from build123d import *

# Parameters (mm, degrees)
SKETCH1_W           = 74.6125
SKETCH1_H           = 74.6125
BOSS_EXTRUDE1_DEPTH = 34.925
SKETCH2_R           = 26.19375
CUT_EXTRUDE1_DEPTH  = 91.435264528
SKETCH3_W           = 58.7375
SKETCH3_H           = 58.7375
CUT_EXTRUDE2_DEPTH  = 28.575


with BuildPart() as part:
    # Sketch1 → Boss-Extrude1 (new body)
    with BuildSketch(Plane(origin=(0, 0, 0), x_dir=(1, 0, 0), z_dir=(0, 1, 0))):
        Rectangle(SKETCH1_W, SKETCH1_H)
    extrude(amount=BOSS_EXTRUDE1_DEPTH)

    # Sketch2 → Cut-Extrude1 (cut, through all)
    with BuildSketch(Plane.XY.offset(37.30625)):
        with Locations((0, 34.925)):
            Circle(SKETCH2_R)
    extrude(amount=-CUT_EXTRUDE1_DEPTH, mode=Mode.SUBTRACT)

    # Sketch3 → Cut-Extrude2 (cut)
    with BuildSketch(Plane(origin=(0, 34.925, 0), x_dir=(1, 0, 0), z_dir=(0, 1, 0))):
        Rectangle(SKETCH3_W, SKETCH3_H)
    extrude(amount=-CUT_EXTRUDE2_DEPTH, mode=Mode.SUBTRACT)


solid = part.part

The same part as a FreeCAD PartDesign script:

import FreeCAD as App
import Part
import Sketcher
Q = App.Units.Quantity

doc = App.newDocument("Part")
body = doc.addObject("PartDesign::Body", "Body")

sketch1 = body.newObject("Sketcher::SketchObject", "Sketch")
sketch1.AttachmentSupport = (doc.getObject("XZ_Plane"), [""])
sketch1.MapMode = "FlatFace"
sketch1.addGeometry(Part.LineSegment(App.Vector(-37.30625, -37.30625, 0), App.Vector(-37.30625, 37.30625, 0)), False)
sketch1.addGeometry(Part.LineSegment(App.Vector(-37.30625, 37.30625, 0), App.Vector(37.30625, 37.30625, 0)), False)
sketch1.addGeometry(Part.LineSegment(App.Vector(37.30625, 37.30625, 0), App.Vector(37.30625, -37.30625, 0)), False)
sketch1.addGeometry(Part.LineSegment(App.Vector(37.30625, -37.30625, 0), App.Vector(-37.30625, -37.30625, 0)), False)
sketch1.addConstraint(Sketcher.Constraint("Coincident", 0, 2, 1, 1))
sketch1.addConstraint(Sketcher.Constraint("Coincident", 1, 2, 2, 1))
sketch1.addConstraint(Sketcher.Constraint("Coincident", 2, 2, 3, 1))
sketch1.addConstraint(Sketcher.Constraint("Coincident", 3, 2, 0, 1))
sketch1.addConstraint(Sketcher.Constraint("Vertical", 0))
sketch1.addConstraint(Sketcher.Constraint("Horizontal", 1))
sketch1.addConstraint(Sketcher.Constraint("Vertical", 2))
sketch1.addConstraint(Sketcher.Constraint("Horizontal", 3))
sketch1.addConstraint(Sketcher.Constraint("Symmetric", 0, 2, 2, 2, -1, 1))
sketch1.addConstraint(Sketcher.Constraint("Equal", 3, 0))
sketch1.addConstraint(Sketcher.Constraint("DistanceX", 1, 1, 1, 2, Q("2.9375 in")))
pad1 = body.newObject("PartDesign::Pad", "Pad")
pad1.Profile = sketch1
pad1.Length = Q("1.375 in")
pad1.Reversed = True

sketch2 = body.newObject("Sketcher::SketchObject", "Sketch001")
sketch2.AttachmentSupport = (doc.getObject("XY_Plane"), [""])
sketch2.MapMode = "FlatFace"
sketch2.AttachmentOffset = App.Placement(App.Vector(0, 0, 1.46875 * 25.4), App.Rotation())
sketch2.addGeometry(Part.Circle(App.Vector(0, 34.925, 0), App.Vector(0, 0, 1), 26.19375), False)
sketch2.addConstraint(Sketcher.Constraint("PointOnObject", 0, 3, -2))
sketch2.addConstraint(Sketcher.Constraint("Diameter", 0, Q("2.0625 in")))
sketch2.addConstraint(Sketcher.Constraint("DistanceY", -1, 1, 0, 3, Q("1.375 in")))
pocket1 = body.newObject("PartDesign::Pocket", "Pocket")
pocket1.Profile = sketch2
pocket1.Type = "ThroughAll"

sketch3 = body.newObject("Sketcher::SketchObject", "Sketch002")
sketch3.AttachmentSupport = (doc.getObject("XZ_Plane"), [""])
sketch3.MapMode = "FlatFace"
sketch3.AttachmentOffset = App.Placement(App.Vector(0, 0, -1.375 * 25.4), App.Rotation())
sketch3.addGeometry(Part.LineSegment(App.Vector(-29.36875, -29.36875, 0), App.Vector(-29.36875, 29.36875, 0)), False)
sketch3.addGeometry(Part.LineSegment(App.Vector(-29.36875, 29.36875, 0), App.Vector(29.36875, 29.36875, 0)), False)
sketch3.addGeometry(Part.LineSegment(App.Vector(29.36875, 29.36875, 0), App.Vector(29.36875, -29.36875, 0)), False)
sketch3.addGeometry(Part.LineSegment(App.Vector(29.36875, -29.36875, 0), App.Vector(-29.36875, -29.36875, 0)), False)
sketch3.addConstraint(Sketcher.Constraint("Coincident", 0, 2, 1, 1))
sketch3.addConstraint(Sketcher.Constraint("Coincident", 1, 2, 2, 1))
sketch3.addConstraint(Sketcher.Constraint("Coincident", 2, 2, 3, 1))
sketch3.addConstraint(Sketcher.Constraint("Coincident", 3, 2, 0, 1))
sketch3.addConstraint(Sketcher.Constraint("Vertical", 0))
sketch3.addConstraint(Sketcher.Constraint("Horizontal", 1))
sketch3.addConstraint(Sketcher.Constraint("Vertical", 2))
sketch3.addConstraint(Sketcher.Constraint("Horizontal", 3))
sketch3.addConstraint(Sketcher.Constraint("Symmetric", 0, 2, 2, 2, -1, 1))
sketch3.addConstraint(Sketcher.Constraint("Equal", 3, 0))
sketch3.addConstraint(Sketcher.Constraint("DistanceX", 1, 1, 1, 2, Q("2.3125 in")))
pocket2 = body.newObject("PartDesign::Pocket", "Pocket001")
pocket2.Profile = sketch3
pocket2.Length = Q("1.125 in")
pocket2.Reversed = True

doc.recompute()
